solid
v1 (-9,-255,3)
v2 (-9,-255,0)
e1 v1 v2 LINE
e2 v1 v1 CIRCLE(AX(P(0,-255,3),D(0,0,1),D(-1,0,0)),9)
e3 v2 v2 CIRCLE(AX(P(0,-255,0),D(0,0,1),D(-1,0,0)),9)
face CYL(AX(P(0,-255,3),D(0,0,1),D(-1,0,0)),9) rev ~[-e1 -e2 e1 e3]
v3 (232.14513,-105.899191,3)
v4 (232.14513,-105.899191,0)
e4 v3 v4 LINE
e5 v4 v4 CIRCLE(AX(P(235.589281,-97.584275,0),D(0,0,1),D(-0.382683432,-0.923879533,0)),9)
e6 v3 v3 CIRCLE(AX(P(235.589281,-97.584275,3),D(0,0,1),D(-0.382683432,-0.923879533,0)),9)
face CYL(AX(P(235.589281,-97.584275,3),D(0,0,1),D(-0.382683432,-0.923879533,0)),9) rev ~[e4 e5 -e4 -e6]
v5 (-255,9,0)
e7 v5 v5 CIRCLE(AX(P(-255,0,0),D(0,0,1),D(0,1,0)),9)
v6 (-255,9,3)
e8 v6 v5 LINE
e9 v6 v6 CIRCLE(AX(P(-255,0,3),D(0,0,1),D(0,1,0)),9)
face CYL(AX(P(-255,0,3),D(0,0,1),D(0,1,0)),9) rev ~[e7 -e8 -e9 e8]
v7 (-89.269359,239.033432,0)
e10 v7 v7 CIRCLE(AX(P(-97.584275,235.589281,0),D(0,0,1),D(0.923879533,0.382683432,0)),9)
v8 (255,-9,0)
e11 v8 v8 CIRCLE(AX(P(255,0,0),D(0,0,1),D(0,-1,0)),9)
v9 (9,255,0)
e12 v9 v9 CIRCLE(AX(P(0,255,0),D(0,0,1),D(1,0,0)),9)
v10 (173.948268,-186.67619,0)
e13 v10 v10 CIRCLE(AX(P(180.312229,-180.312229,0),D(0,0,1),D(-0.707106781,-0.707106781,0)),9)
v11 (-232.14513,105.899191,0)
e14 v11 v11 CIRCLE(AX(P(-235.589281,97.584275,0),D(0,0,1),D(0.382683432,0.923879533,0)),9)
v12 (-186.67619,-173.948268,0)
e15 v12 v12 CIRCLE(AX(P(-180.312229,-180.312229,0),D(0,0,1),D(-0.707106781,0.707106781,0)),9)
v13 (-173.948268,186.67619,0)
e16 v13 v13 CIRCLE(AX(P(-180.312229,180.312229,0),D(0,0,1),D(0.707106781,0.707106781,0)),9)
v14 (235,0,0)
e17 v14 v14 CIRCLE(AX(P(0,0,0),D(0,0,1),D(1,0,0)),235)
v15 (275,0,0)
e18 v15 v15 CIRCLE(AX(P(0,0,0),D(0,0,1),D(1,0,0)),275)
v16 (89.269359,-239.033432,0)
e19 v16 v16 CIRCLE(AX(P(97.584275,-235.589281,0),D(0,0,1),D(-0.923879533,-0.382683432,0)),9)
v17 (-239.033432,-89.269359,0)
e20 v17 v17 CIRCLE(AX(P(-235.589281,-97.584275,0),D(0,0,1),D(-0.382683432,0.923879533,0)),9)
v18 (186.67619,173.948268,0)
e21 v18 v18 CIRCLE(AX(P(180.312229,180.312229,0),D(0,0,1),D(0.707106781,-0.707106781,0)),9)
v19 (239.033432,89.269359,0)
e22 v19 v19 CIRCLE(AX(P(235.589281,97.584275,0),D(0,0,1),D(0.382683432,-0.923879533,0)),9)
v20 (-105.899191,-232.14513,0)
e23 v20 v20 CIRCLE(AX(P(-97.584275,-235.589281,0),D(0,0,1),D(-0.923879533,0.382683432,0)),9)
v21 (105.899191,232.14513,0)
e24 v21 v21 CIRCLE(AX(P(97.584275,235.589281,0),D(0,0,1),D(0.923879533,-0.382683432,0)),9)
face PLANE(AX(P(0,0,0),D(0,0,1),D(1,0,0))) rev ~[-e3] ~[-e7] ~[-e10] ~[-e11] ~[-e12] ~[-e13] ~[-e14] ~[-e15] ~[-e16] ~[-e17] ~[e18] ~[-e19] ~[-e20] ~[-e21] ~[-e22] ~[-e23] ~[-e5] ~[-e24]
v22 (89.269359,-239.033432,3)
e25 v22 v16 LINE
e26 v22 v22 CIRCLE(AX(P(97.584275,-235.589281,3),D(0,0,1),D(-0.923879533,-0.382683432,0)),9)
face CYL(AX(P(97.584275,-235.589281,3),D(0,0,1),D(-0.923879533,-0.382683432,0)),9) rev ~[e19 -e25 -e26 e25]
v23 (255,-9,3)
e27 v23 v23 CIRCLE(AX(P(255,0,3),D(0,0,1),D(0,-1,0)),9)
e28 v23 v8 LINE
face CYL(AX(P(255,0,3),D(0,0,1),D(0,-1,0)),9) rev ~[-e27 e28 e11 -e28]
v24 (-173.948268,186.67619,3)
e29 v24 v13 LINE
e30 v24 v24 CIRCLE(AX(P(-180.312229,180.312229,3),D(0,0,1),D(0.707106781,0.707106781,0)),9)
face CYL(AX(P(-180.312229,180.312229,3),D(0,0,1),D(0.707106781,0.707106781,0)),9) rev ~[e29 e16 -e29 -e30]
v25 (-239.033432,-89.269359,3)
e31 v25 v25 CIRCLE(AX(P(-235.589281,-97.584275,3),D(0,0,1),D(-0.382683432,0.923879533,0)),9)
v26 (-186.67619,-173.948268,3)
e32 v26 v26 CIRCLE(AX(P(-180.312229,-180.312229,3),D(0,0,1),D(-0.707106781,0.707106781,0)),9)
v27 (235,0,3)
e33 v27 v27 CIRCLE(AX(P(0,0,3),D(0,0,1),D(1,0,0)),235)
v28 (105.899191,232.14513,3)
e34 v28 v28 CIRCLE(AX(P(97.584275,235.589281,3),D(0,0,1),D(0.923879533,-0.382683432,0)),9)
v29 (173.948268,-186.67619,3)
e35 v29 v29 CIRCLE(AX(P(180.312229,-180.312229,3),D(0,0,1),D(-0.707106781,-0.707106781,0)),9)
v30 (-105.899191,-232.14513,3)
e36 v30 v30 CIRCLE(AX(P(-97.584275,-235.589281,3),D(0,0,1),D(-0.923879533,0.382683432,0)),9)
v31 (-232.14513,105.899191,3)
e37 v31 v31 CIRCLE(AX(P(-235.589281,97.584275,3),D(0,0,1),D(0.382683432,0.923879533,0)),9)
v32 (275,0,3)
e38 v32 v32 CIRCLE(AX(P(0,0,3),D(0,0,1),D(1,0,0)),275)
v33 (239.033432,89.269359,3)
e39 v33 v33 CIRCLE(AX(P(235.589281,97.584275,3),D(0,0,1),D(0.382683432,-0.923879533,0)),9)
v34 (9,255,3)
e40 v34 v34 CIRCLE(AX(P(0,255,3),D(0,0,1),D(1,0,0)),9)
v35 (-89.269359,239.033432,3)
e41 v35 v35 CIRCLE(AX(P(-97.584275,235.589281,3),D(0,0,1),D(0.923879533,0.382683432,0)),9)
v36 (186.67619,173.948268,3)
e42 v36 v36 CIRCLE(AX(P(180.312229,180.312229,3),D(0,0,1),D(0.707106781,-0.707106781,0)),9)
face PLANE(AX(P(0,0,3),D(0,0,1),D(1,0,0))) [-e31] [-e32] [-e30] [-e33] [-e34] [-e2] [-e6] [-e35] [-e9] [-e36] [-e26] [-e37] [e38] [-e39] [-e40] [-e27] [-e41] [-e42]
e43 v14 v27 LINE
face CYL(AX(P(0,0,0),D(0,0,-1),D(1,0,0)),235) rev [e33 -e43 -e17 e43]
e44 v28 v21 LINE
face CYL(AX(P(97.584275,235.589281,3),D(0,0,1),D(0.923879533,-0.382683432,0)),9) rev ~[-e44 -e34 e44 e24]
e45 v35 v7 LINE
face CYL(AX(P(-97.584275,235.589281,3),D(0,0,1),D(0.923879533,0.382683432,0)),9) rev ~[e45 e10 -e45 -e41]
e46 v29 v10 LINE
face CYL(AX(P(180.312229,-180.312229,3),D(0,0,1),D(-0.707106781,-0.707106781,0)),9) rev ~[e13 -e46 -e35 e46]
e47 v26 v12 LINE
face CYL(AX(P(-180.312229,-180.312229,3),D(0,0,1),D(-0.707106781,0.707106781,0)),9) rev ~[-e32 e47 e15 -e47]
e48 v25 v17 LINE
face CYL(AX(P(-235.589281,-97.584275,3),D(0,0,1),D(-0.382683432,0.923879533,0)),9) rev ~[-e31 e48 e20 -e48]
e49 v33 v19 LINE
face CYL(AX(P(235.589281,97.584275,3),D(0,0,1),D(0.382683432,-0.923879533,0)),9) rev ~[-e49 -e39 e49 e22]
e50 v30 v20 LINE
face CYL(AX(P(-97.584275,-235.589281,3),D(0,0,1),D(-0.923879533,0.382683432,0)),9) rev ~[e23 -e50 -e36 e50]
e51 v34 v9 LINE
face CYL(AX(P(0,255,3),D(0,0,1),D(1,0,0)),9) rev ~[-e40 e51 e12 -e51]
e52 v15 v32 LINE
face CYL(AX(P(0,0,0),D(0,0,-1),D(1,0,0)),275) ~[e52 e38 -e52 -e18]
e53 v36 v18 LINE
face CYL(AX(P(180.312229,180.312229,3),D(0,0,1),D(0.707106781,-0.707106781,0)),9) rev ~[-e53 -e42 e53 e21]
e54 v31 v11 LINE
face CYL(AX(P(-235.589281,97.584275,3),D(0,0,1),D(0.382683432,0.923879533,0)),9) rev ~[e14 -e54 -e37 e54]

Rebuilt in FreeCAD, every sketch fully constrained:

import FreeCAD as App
import Part
import Sketcher

V = App.Vector

doc = App.newDocument("Part")
body = doc.addObject("PartDesign::Body", "Body")

sketch1 = body.newObject("Sketcher::SketchObject", "Sketch")
sketch1.AttachmentSupport = (doc.getObject("XY_Plane"), [""])
sketch1.MapMode = "FlatFace"
sketch1.addGeometry([
    Part.Circle(V(0, 0, 0), V(0, 0, 1), 275),
    Part.Circle(V(0, 0, 0), V(0, 0, 1), 235),
], False)
sketch1.addConstraint([
    Sketcher.Constraint("Coincident", 0, 3, -1, 1),
    Sketcher.Constraint("Coincident", 1, 3, -1, 1),
    Sketcher.Constraint("Diameter", 0, 550.0),
    Sketcher.Constraint("Diameter", 1, 470.0),
])
pad1 = body.newObject("PartDesign::Pad", "Pad")
pad1.Profile = sketch1
pad1.Length = 3

sketch2 = body.newObject("Sketcher::SketchObject", "Sketch001")
sketch2.AttachmentSupport = (doc.getObject("XY_Plane"), [""])
sketch2.MapMode = "FlatFace"
sketch2.AttachmentOffset = App.Placement(V(0, 0, 3), App.Rotation())
sketch2.addGeometry(Part.Circle(V(0, 255, 0), V(0, 0, 1), 9), False)
sketch2.addConstraint([
    Sketcher.Constraint("PointOnObject", 0, 3, -2),
    Sketcher.Constraint("Diameter", 0, 18.0),
    Sketcher.Constraint("DistanceY", -1, 1, 0, 3, 255.0),
])
pocket1 = body.newObject("PartDesign::Pocket", "Pocket")
pocket1.Profile = sketch2
pocket1.Type = "ThroughAll"
doc.recompute()

polarpattern = body.newObject("PartDesign::PolarPattern", "PolarPattern")
polarpattern.Originals = [pocket1]
polarpattern.Axis = (doc.getObject("Z_Axis"), [""])
polarpattern.Angle = 360
polarpattern.Occurrences = 16
body.Tip = polarpattern

doc.recompute()
